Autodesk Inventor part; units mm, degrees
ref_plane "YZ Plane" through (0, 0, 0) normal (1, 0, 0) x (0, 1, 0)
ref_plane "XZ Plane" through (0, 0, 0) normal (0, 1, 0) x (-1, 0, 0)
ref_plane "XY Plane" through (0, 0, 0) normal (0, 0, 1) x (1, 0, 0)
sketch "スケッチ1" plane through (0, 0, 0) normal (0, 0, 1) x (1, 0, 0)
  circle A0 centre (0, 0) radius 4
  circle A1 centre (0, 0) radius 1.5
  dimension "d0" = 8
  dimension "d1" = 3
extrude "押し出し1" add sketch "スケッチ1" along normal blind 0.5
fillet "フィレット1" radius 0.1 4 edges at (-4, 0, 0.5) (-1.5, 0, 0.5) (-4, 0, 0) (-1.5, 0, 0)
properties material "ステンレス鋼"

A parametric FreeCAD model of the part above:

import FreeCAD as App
import Part
import Sketcher
from FreeCAD import Vector
Q = App.Units.Quantity


def edges_at(feature, points):
    """Names of the edges that pass closest to the given points."""
    edges = feature.Shape.Edges
    near = lambda p: min(range(len(edges)), key=lambda i: edges[i].distToShape(Part.Vertex(*p))[0])
    return sorted({f"Edge{near(p) + 1}" for p in points})

doc = App.newDocument("Part")
params = doc.addObject("Spreadsheet::Sheet", "Params")
for row, (alias, value) in enumerate([
    ("sketch1_diameter", "8 mm"),
    ("sketch1_diameter2", "3 mm"),
    ("pad1_length", "0.5 mm"),
    ("fillet_radius", "0.1 mm"),
], start=1):
    params.set(f"A{row}", alias)
    params.set(f"B{row}", "=" + value)
    params.setAlias(f"B{row}", alias)

body = doc.addObject("PartDesign::Body", "Body")

# Sketch on XY plane
sketch1 = doc.addObject("Sketcher::SketchObject", "Sketch")
body.addObject(sketch1)
sketch1.AttachmentSupport = (doc.XY_Plane, [""])
sketch1.MapMode = "FlatFace"
sketch1.addGeometry([
    Part.Circle(Vector(0, 0, 0), Vector(0, 0, 1), 4),
    Part.Circle(Vector(0, 0, 0), Vector(0, 0, 1), 1.5),
], False)
sketch1.addConstraint([
    Sketcher.Constraint("Coincident", 0, 3, -1, 1),
    Sketcher.Constraint("Coincident", 1, 3, -1, 1),
    Sketcher.Constraint("Diameter", 0, Q("8 mm")),
    Sketcher.Constraint("Diameter", 1, Q("3 mm")),
])
sketch1.setExpression("Constraints[2]", "Params.sketch1_diameter")
sketch1.setExpression("Constraints[3]", "Params.sketch1_diameter2")
pad1 = doc.addObject("PartDesign::Pad", "Pad")
body.addObject(pad1)
pad1.Profile = sketch1
pad1.setExpression("Length", "Params.pad1_length")
doc.recompute()

fillet = doc.addObject("PartDesign::Fillet", "Fillet")
body.addObject(fillet)
fillet.Base = (pad1, edges_at(pad1, [
    (-4, 0, 0.5),
    (-1.5, 0, 0.5),
    (-4, 0, 0),
    (-1.5, 0, 0),
]))
fillet.setExpression("Radius", "Params.fillet_radius")

doc.recompute()
